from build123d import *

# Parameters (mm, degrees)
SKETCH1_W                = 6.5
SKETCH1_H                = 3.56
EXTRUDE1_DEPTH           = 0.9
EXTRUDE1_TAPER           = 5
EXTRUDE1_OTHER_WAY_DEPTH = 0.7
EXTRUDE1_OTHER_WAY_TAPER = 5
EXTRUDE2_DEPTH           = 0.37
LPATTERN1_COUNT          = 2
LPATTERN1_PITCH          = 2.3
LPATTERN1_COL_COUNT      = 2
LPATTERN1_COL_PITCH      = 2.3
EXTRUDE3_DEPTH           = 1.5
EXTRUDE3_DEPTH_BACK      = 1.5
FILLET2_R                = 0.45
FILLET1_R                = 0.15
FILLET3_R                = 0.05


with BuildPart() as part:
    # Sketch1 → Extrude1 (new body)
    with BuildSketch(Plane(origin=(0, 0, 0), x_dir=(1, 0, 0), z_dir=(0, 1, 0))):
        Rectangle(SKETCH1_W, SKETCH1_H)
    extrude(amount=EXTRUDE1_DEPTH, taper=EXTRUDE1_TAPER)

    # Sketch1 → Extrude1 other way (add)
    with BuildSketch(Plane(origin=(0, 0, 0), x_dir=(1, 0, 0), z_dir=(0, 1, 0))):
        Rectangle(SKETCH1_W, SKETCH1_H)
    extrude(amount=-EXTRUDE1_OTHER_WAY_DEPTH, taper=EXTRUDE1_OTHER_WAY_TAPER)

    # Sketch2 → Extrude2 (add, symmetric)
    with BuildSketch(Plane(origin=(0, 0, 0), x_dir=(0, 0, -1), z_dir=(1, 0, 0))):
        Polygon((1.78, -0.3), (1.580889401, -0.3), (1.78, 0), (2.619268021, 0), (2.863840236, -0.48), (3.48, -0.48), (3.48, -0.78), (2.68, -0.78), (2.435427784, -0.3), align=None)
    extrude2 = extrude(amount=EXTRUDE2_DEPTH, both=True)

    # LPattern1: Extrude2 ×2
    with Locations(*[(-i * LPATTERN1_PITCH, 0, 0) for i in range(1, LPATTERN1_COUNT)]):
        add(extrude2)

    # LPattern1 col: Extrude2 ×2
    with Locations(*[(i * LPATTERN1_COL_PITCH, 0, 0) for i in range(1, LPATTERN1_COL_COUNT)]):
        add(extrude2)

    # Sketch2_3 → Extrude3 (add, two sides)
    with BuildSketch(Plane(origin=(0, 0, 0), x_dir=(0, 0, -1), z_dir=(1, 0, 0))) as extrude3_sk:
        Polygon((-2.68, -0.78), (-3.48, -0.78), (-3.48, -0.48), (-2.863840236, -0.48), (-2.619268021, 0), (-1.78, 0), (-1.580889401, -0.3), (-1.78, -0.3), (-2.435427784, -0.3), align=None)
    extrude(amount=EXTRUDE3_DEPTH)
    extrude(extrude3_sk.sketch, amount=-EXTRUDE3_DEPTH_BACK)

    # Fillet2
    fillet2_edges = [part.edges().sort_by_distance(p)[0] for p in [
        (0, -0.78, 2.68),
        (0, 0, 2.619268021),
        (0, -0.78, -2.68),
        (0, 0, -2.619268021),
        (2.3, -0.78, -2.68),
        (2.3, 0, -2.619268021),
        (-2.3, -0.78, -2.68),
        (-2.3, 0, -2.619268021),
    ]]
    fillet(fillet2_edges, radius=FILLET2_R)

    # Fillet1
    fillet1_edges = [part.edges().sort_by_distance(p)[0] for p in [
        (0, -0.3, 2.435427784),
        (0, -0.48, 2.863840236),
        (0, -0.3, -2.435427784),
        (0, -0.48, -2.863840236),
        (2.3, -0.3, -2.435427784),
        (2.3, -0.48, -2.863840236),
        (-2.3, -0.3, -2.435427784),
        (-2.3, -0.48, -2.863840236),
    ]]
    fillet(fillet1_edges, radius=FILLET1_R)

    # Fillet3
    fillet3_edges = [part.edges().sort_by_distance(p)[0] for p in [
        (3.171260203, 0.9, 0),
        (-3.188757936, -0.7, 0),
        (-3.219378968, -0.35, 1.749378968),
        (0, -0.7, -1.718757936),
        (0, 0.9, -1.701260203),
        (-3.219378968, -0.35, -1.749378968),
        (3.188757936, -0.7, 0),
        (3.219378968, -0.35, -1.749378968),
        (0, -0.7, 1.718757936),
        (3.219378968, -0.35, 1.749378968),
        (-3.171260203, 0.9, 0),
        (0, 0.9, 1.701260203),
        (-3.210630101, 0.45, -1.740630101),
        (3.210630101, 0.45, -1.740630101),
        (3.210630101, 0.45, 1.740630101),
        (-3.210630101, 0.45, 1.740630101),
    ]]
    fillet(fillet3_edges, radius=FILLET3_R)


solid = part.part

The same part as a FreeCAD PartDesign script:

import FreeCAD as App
import Part
import Sketcher
Q = App.Units.Quantity


def edges_at(feature, points):
    """Names of the edges that pass closest to the given points."""
    edges = feature.Shape.Edges
    near = lambda p: min(range(len(edges)), key=lambda i: edges[i].distToShape(Part.Vertex(*p))[0])
    return sorted({f"Edge{near(p) + 1}" for p in points})


def add_polygon(sketch, points):
    """Adds a closed chain of lines whose ends are joined by coincident constraints."""
    first, n = sketch.GeometryCount, len(points)
    for a, b in zip(points, points[1:] + points[:1]):
        sketch.addGeometry(Part.LineSegment(App.Vector(*a, 0), App.Vector(*b, 0)), False)
    for i in range(n):
        sketch.addConstraint(Sketcher.Constraint("Coincident", first + i, 2, first + (i + 1) % n, 1))

doc = App.newDocument("Part")
body = doc.addObject("PartDesign::Body", "Body")

sketch1 = body.newObject("Sketcher::SketchObject", "Sketch")
sketch1.AttachmentSupport = (doc.getObject("XZ_Plane"), [""])
sketch1.MapMode = "FlatFace"
add_polygon(sketch1, [(-3.2, -1.8), (-3.2, 1.8), (3.2, 1.8), (3.2, -1.8)])
sketch1.addConstraint(Sketcher.Constraint("Vertical", 0))
sketch1.addConstraint(Sketcher.Constraint("Horizontal", 1))
sketch1.addConstraint(Sketcher.Constraint("Vertical", 2))
sketch1.addConstraint(Sketcher.Constraint("Horizontal", 3))
sketch1.addConstraint(Sketcher.Constraint("Symmetric", 0, 2, 2, 2, -1, 1))
sketch1.addConstraint(Sketcher.Constraint("DistanceX", 1, 1, 1, 2, Q("6.5 mm")))
sketch1.addConstraint(Sketcher.Constraint("DistanceY", 0, 1, 0, 2, Q("3.56 mm")))
pad1 = body.newObject("PartDesign::Pad", "Pad")
pad1.Profile = sketch1
pad1.Length = 0.9
pad1.Reversed = True
pad1.TaperAngle = -5

sketch2 = body.newObject("Sketcher::SketchObject", "Sketch001")
sketch2.AttachmentSupport = (doc.getObject("XZ_Plane"), [""])
sketch2.MapMode = "FlatFace"
add_polygon(sketch2, [(-3.2, -1.8), (-3.2, 1.8), (3.2, 1.8), (3.2, -1.8)])
sketch2.addConstraint(Sketcher.Constraint("Vertical", 0))
sketch2.addConstraint(Sketcher.Constraint("Horizontal", 1))
sketch2.addConstraint(Sketcher.Constraint("Vertical", 2))
sketch2.addConstraint(Sketcher.Constraint("Horizontal", 3))
sketch2.addConstraint(Sketcher.Constraint("Symmetric", 0, 2, 2, 2, -1, 1))
sketch2.addConstraint(Sketcher.Constraint("DistanceX", 1, 1, 1, 2, Q("6.5 mm")))
sketch2.addConstraint(Sketcher.Constraint("DistanceY", 0, 1, 0, 2, Q("3.56 mm")))
pad2 = body.newObject("PartDesign::Pad", "Pad001")
pad2.Profile = sketch2
pad2.Length = 0.7
pad2.TaperAngle = -5

sketch3 = body.newObject("Sketcher::SketchObject", "Sketch002")
sketch3.AttachmentSupport = (doc.getObject("YZ_Plane"), [""])
sketch3.MapMode = "FlatFace"
add_polygon(sketch3, [(-0.3, -1.58), (-0.3, -2.44), (-0.78, -2.68), (-0.78, -3.48), (-0.48, -3.48), (-0.48, -2.86), (0, -2.62), (0, -1.78)])
sketch3.addConstraint(Sketcher.Constraint("Vertical", 0))
sketch3.addConstraint(Sketcher.Constraint("Vertical", 2))
sketch3.addConstraint(Sketcher.Constraint("Horizontal", 3))
sketch3.addConstraint(Sketcher.Constraint("Vertical", 4))
sketch3.addConstraint(Sketcher.Constraint("Vertical", 6))
sketch3.addConstraint(Sketcher.Constraint("PointOnObject", 5, 2, -2))
sketch3.addConstraint(Sketcher.Constraint("Parallel", 1, 5))
sketch3.addConstraint(Sketcher.Constraint("Equal", 1, 5))
sketch3.addConstraint(Sketcher.Constraint("Angle", 1, Q("-153 deg")))
sketch3.addConstraint(Sketcher.Constraint("DistanceX", 3, 1, 3, 2, Q("0.3 mm")))
sketch3.addConstraint(Sketcher.Constraint("DistanceY", 2, 2, 2, 1, Q("0.8 mm")))
sketch3.addConstraint(Sketcher.Constraint("DistanceY", 1, 2, 6, 2, Q("0.9 mm")))
sketch3.addConstraint(Sketcher.Constraint("DistanceX", 1, 2, -1, 1, Q("0.78 mm")))
sketch3.addConstraint(Sketcher.Constraint("DistanceY", 1, 2, -1, 1, Q("2.68 mm")))
sketch3.addConstraint(Sketcher.Constraint("DistanceY", 0, 2, 0, 1, Q("0.854538 mm")))
sketch3.addConstraint(Sketcher.Constraint("DistanceY", 4, 1, 4, 2, Q("0.61616 mm")))
pad3 = body.newObject("PartDesign::Pad", "Pad002")
pad3.Profile = sketch3
pad3.Length = 0.74
pad3.Midplane = True
doc.recompute()

linearpattern = body.newObject("PartDesign::LinearPattern", "LinearPattern")
linearpattern.Originals = [pad3]
linearpattern.Direction = (doc.getObject("X_Axis"), [""])
linearpattern.Mode = "offset"
linearpattern.Offset = 2.3
linearpattern.Occurrences = 2
linearpattern.Reversed = True
body.Tip = linearpattern
doc.recompute()

linearpattern2 = body.newObject("PartDesign::LinearPattern", "LinearPattern001")
linearpattern2.Originals = [pad3]
linearpattern2.Direction = (doc.getObject("X_Axis"), [""])
linearpattern2.Mode = "offset"
linearpattern2.Offset = 2.3
linearpattern2.Occurrences = 2
body.Tip = linearpattern2

sketch4 = body.newObject("Sketcher::SketchObject", "Sketch003")
sketch4.AttachmentSupport = (doc.getObject("YZ_Plane"), [""])
sketch4.MapMode = "FlatFace"
add_polygon(sketch4, [(-0.78, 3.48), (-0.78, 2.68), (-0.3, 2.44), (-0.3, 1.58), (0, 1.78), (0, 2.62), (-0.48, 2.86), (-0.48, 3.48)])
sketch4.addConstraint(Sketcher.Constraint("Vertical", 0))
sketch4.addConstraint(Sketcher.Constraint("Vertical", 2))
sketch4.addConstraint(Sketcher.Constraint("Vertical", 4))
sketch4.addConstraint(Sketcher.Constraint("Vertical", 6))
sketch4.addConstraint(Sketcher.Constraint("Horizontal", 7))
sketch4.addConstraint(Sketcher.Constraint("PointOnObject", 3, 2, -2))
sketch4.addConstraint(Sketcher.Constraint("Parallel", 1, 5))
sketch4.addConstraint(Sketcher.Constraint("Equal", 1, 5))
sketch4.addConstraint(Sketcher.Constraint("Angle", 1, Q("-27 deg")))
sketch4.addConstraint(Sketcher.Constraint("DistanceX", 7, 2, 7, 1, Q("0.3 mm")))
sketch4.addConstraint(Sketcher.Constraint("DistanceY", 0, 2, 0, 1, Q("0.8 mm")))
sketch4.addConstraint(Sketcher.Constraint("DistanceY", 3, 2, 0, 2, Q("0.9 mm")))
sketch4.addConstraint(Sketcher.Constraint("DistanceX", 0, 2, -1, 1, Q("0.78 mm")))
sketch4.addConstraint(Sketcher.Constraint("DistanceY", -1, 1, 0, 2, Q("2.68 mm")))
sketch4.addConstraint(Sketcher.Constraint("DistanceY", 2, 2, 2, 1, Q("0.854538 mm")))
sketch4.addConstraint(Sketcher.Constraint("DistanceY", 4, 1, 4, 2, Q("0.839268 mm")))
pad4 = body.newObject("PartDesign::Pad", "Pad003")
pad4.Profile = sketch4
pad4.Type = "TwoLengths"
pad4.Length = 1.5
pad4.Length2 = 1.5
doc.recompute()

fillet = body.newObject("PartDesign::Fillet", "Fillet")
fillet.Base = (pad4, edges_at(pad4, [
    (0, -0.78, 2.68),
    (0, 0, 2.619),
    (0, -0.78, -2.68),
    (0, 0, -2.619),
    (2.3, -0.78, -2.68),
    (2.3, 0, -2.619),
    (-2.3, -0.78, -2.68),
    (-2.3, 0, -2.619),
]))
fillet.Radius = 0.45
doc.recompute()

fillet2 = body.newObject("PartDesign::Fillet", "Fillet001")
fillet2.Base = (fillet, edges_at(fillet, [
    (0, -0.3, 2.435),
    (0, -0.48, 2.864),
    (0, -0.3, -2.435),
    (0, -0.48, -2.864),
    (2.3, -0.3, -2.435),
    (2.3, -0.48, -2.864),
    (-2.3, -0.3, -2.435),
    (-2.3, -0.48, -2.864),
]))
fillet2.Radius = 0.15
doc.recompute()

fillet3 = body.newObject("PartDesign::Fillet", "Fillet002")
fillet3.Base = (fillet2, edges_at(fillet2, [
    (3.171, 0.9, 0),
    (-3.189, -0.7, 0),
    (-3.219, -0.35, 1.749),
    (0, -0.7, -1.719),
    (0, 0.9, -1.701),
    (-3.219, -0.35, -1.749),
    (3.189, -0.7, 0),
    (3.219, -0.35, -1.749),
    (0, -0.7, 1.719),
    (3.219, -0.35, 1.749),
    (-3.171, 0.9, 0),
    (0, 0.9, 1.701),
    (-3.211, 0.45, -1.741),
    (3.211, 0.45, -1.741),
    (3.211, 0.45, 1.741),
    (-3.211, 0.45, 1.741),
]))
fillet3.Radius = 0.05

doc.recompute()
